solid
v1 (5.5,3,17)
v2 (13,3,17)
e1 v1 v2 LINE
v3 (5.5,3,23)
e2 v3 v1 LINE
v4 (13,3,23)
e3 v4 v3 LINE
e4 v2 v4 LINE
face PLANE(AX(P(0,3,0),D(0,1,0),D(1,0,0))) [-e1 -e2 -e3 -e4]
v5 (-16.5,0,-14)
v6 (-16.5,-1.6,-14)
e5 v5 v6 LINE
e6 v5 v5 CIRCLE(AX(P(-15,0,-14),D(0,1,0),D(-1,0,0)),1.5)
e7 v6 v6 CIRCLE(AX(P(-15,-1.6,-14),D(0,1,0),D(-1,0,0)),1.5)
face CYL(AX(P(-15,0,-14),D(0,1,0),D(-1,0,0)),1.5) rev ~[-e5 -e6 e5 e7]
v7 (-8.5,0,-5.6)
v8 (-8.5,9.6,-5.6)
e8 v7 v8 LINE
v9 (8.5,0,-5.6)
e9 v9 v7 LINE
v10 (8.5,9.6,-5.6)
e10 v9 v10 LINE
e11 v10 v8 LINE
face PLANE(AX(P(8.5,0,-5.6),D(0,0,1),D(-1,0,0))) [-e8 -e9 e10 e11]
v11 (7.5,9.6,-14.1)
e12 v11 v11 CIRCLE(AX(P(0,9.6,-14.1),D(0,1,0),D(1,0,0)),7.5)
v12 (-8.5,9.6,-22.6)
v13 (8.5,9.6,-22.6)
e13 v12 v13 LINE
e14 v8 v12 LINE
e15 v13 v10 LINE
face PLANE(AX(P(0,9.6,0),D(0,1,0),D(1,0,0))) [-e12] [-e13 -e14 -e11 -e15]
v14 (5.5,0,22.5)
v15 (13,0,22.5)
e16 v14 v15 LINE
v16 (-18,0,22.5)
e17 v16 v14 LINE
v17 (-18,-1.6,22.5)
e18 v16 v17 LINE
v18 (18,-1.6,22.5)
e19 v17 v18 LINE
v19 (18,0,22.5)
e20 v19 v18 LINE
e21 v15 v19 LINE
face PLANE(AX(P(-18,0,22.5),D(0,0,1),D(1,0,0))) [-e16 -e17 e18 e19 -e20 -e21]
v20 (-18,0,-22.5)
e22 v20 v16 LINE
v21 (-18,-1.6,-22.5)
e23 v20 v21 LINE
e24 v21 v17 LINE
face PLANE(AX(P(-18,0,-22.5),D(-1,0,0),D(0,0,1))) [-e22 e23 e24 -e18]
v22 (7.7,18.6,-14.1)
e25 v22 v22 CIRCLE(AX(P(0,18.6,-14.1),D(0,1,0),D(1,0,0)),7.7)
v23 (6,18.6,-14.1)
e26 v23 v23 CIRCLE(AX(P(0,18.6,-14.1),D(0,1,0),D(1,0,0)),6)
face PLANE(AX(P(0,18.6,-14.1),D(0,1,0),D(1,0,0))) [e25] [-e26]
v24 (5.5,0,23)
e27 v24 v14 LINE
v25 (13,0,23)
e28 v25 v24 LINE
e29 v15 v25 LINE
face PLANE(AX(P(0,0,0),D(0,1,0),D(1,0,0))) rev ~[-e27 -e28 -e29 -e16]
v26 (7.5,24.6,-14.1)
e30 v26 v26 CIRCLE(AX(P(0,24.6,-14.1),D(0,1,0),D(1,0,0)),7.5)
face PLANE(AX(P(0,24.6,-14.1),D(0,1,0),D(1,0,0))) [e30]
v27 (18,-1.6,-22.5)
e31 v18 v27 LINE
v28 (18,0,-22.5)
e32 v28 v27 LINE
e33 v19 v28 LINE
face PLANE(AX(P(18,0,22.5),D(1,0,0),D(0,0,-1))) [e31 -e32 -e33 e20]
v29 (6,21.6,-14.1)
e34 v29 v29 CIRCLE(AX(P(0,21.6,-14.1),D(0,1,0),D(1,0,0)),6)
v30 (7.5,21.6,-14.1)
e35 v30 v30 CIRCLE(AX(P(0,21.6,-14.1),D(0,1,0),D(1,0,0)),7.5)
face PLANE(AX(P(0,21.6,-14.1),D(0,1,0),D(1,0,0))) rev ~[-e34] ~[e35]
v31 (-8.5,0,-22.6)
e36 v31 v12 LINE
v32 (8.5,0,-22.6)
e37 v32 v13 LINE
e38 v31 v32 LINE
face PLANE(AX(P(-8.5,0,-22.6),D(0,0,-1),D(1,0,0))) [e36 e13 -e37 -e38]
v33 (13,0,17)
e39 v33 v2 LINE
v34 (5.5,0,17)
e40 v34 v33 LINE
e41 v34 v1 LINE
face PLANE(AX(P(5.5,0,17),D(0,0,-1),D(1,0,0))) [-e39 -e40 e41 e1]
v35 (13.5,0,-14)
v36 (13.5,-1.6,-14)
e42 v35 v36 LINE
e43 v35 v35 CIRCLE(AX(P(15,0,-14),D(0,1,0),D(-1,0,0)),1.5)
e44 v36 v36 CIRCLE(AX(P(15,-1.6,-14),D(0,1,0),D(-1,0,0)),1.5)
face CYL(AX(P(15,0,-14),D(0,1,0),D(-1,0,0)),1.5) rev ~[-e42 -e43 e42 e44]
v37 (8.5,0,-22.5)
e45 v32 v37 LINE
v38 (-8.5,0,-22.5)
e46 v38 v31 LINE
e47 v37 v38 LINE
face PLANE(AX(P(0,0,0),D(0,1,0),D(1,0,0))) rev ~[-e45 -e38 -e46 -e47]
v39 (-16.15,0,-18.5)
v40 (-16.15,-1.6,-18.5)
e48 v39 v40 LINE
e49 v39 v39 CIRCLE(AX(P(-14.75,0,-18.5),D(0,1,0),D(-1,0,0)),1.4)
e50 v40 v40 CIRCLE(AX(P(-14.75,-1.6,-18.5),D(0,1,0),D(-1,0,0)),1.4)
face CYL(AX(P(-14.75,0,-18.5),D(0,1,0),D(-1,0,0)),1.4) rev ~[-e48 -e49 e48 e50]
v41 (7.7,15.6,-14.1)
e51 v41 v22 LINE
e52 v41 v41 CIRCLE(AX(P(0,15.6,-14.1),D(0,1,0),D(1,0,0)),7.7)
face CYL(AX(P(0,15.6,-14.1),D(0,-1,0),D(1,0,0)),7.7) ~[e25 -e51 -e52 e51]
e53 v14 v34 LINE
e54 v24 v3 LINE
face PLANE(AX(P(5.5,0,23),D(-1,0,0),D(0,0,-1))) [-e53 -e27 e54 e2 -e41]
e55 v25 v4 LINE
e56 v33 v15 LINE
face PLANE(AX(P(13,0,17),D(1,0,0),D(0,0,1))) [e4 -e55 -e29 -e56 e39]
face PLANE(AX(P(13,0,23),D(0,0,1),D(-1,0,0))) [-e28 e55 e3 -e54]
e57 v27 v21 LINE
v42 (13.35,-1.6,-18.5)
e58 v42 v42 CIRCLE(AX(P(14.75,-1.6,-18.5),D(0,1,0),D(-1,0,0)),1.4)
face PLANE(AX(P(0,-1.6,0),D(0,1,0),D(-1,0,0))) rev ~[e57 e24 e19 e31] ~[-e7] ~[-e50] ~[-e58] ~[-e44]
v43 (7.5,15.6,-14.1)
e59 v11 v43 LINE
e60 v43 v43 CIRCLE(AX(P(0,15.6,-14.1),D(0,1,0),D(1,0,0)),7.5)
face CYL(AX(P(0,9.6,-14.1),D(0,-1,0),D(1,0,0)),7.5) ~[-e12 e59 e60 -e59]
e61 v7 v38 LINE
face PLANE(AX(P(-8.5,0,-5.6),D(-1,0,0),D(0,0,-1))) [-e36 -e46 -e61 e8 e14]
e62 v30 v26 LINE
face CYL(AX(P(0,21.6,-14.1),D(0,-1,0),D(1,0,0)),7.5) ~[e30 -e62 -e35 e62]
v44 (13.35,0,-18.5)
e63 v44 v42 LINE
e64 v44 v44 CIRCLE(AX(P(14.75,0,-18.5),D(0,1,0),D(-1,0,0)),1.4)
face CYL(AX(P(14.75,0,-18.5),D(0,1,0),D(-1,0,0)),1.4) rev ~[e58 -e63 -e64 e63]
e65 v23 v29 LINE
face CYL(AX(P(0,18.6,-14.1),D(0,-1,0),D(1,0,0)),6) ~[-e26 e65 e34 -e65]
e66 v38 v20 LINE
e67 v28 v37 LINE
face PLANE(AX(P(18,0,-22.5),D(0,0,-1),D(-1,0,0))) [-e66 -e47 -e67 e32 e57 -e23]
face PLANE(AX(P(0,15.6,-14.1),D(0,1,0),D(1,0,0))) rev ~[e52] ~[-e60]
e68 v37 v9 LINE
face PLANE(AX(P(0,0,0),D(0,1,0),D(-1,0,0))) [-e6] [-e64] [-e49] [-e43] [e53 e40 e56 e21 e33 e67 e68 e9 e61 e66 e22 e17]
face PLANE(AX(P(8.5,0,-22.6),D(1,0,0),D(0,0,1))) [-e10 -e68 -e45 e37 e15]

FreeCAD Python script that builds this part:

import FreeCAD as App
import Part
import Sketcher
from FreeCAD import Vector

doc = App.newDocument("Part")
body = doc.addObject("PartDesign::Body", "Body")

# Sketch on XZ plane
sketch1 = body.newObject("Sketcher::SketchObject", "Sketch")
sketch1.AttachmentSupport = (doc.getObject("XZ_Plane"), [""])
sketch1.MapMode = "FlatFace"
sketch1.addGeometry([
    Part.LineSegment(Vector(18, 22.5, 0), Vector(18, -22.5, 0)),  # 0
    Part.LineSegment(Vector(18, -22.5, 0), Vector(-18, -22.5, 0)),  # 1
    Part.LineSegment(Vector(-18, -22.5, 0), Vector(-18, 22.5, 0)),  # 2
    Part.LineSegment(Vector(-18, 22.5, 0), Vector(18, 22.5, 0)),  # 3
    Part.Circle(Vector(14.75, -18.5, 0), Vector(0, 0, 1), 1.4),  # 4
    Part.Circle(Vector(15, -14, 0), Vector(0, 0, 1), 1.5),  # 5
    Part.Circle(Vector(-14.75, -18.5, 0), Vector(0, 0, 1), 1.4),  # 6
    Part.Circle(Vector(-15, -14, 0), Vector(0, 0, 1), 1.5),  # 7
], False)
sketch1.addConstraint([
    Sketcher.Constraint("Coincident", 0, 2, 1, 1),
    Sketcher.Constraint("Coincident", 1, 2, 2, 1),
    Sketcher.Constraint("Coincident", 2, 2, 3, 1),
    Sketcher.Constraint("Coincident", 3, 2, 0, 1),
    Sketcher.Constraint("Vertical", 0),
    Sketcher.Constraint("Horizontal", 1),
    Sketcher.Constraint("Vertical", 2),
    Sketcher.Constraint("Horizontal", 3),
    Sketcher.Constraint("Equal", 4, 6),
    Sketcher.Constraint("Equal", 5, 7),
    Sketcher.Constraint("Symmetric", 0, 2, 2, 2, -1, 1),
    Sketcher.Constraint("Symmetric", 4, 3, 6, 3, -2),
    Sketcher.Constraint("Symmetric", 5, 3, 7, 3, -2),
    Sketcher.Constraint("Diameter", 5, 3.0),
    Sketcher.Constraint("Diameter", 4, 2.8),
    Sketcher.Constraint("DistanceX", 1, 2, 1, 1, 36.0),
    Sketcher.Constraint("DistanceY", 0, 2, 0, 1, 45.0),
    Sketcher.Constraint("DistanceX", 7, 3, 5, 3, 30.0),
    Sketcher.Constraint("DistanceY", 0, 2, 4, 3, 4.0),
    Sketcher.Constraint("DistanceX", 6, 3, 4, 3, 29.5),
    Sketcher.Constraint("DistanceY", 0, 2, 5, 3, 8.5),
])
pad1 = body.newObject("PartDesign::Pad", "Pad")
pad1.Profile = sketch1
pad1.Length = 1.6

# Sketch on XZ plane
sketch2 = body.newObject("Sketcher::SketchObject", "Sketch001")
sketch2.AttachmentSupport = (doc.getObject("XZ_Plane"), [""])
sketch2.MapMode = "FlatFace"
sketch2.addGeometry([
    Part.LineSegment(Vector(8.5, -22.6, 0), Vector(-8.5, -22.6, 0)),
    Part.LineSegment(Vector(-8.5, -22.6, 0), Vector(-8.5, -5.6, 0)),
    Part.LineSegment(Vector(-8.5, -5.6, 0), Vector(8.5, -5.6, 0)),
    Part.LineSegment(Vector(8.5, -5.6, 0), Vector(8.5, -22.6, 0)),
], False)
sketch2.addConstraint([
    Sketcher.Constraint("Coincident", 0, 2, 1, 1),
    Sketcher.Constraint("Coincident", 1, 2, 2, 1),
    Sketcher.Constraint("Coincident", 2, 2, 3, 1),
    Sketcher.Constraint("Coincident", 3, 2, 0, 1),
    Sketcher.Constraint("Horizontal", 0),
    Sketcher.Constraint("Vertical", 1),
    Sketcher.Constraint("Horizontal", 2),
    Sketcher.Constraint("Vertical", 3),
    Sketcher.Constraint("Equal", 2, 1),
    Sketcher.Constraint("DistanceX", 0, 2, 0, 1, 17.0),
    Sketcher.Constraint("DistanceX", 0, 2, -1, 1, 8.5),
    Sketcher.Constraint("DistanceY", 0, 2, -1, 1, 22.6),
])
pad2 = body.newObject("PartDesign::Pad", "Pad001")
pad2.Profile = sketch2
pad2.Length = 9.6
pad2.Reversed = True

# Sketch on XZ plane
sketch3 = body.newObject("Sketcher::SketchObject", "Sketch002")
sketch3.AttachmentSupport = (doc.getObject("XZ_Plane"), [""])
sketch3.MapMode = "FlatFace"
sketch3.AttachmentOffset = App.Placement(Vector(0, 0, -9.6), App.Rotation())
sketch3.addGeometry(Part.Circle(Vector(0, -14.1, 0), Vector(0, 0, 1), 7.5), False)
sketch3.addConstraint([
    Sketcher.Constraint("PointOnObject", 0, 3, -2),
    Sketcher.Constraint("Diameter", 0, 15.0),
    Sketcher.Constraint("DistanceY", 0, 3, -1, 1, 14.1),
])
pad3 = body.newObject("PartDesign::Pad", "Pad002")
pad3.Profile = sketch3
pad3.Length = 6
pad3.Reversed = True

# Sketch on XZ plane
sketch4 = body.newObject("Sketcher::SketchObject", "Sketch003")
sketch4.AttachmentSupport = (doc.getObject("XZ_Plane"), [""])
sketch4.MapMode = "FlatFace"
sketch4.AttachmentOffset = App.Placement(Vector(0, 0, -15.6), App.Rotation())
sketch4.addGeometry(Part.Circle(Vector(0, -14.1, 0), Vector(0, 0, 1), 7.7), False)
sketch4.addConstraint([
    Sketcher.Constraint("PointOnObject", 0, 3, -2),
    Sketcher.Constraint("Diameter", 0, 15.4),
    Sketcher.Constraint("DistanceY", 0, 3, -1, 1, 14.1),
])
pad4 = body.newObject("PartDesign::Pad", "Pad003")
pad4.Profile = sketch4
pad4.Length = 3
pad4.Reversed = True

# Sketch on XZ plane
sketch5 = body.newObject("Sketcher::SketchObject", "Sketch004")
sketch5.AttachmentSupport = (doc.getObject("XZ_Plane"), [""])
sketch5.MapMode = "FlatFace"
sketch5.AttachmentOffset = App.Placement(Vector(0, 0, -18.6), App.Rotation())
sketch5.addGeometry(Part.Circle(Vector(0, -14.1, 0), Vector(0, 0, 1), 6), False)
sketch5.addConstraint([
    Sketcher.Constraint("PointOnObject", 0, 3, -2),
    Sketcher.Constraint("Diameter", 0, 12.0),
    Sketcher.Constraint("DistanceY", 0, 3, -1, 1, 14.1),
])
pad5 = body.newObject("PartDesign::Pad", "Pad004")
pad5.Profile = sketch5
pad5.Length = 3
pad5.Reversed = True

# Sketch on XZ plane
sketch6 = body.newObject("Sketcher::SketchObject", "Sketch005")
sketch6.AttachmentSupport = (doc.getObject("XZ_Plane"), [""])
sketch6.MapMode = "FlatFace"
sketch6.AttachmentOffset = App.Placement(Vector(0, 0, -21.6), App.Rotation())
sketch6.addGeometry(Part.Circle(Vector(0, -14.1, 0), Vector(0, 0, 1), 7.5), False)
sketch6.addConstraint([
    Sketcher.Constraint("PointOnObject", 0, 3, -2),
    Sketcher.Constraint("Diameter", 0, 15.0),
    Sketcher.Constraint("DistanceY", 0, 3, -1, 1, 14.1),
])
pad6 = body.newObject("PartDesign::Pad", "Pad005")
pad6.Profile = sketch6
pad6.Length = 3
pad6.Reversed = True

# Sketch on XZ plane
sketch7 = body.newObject("Sketcher::SketchObject", "Sketch006")
sketch7.AttachmentSupport = (doc.getObject("XZ_Plane"), [""])
sketch7.MapMode = "FlatFace"
sketch7.addGeometry([
    Part.LineSegment(Vector(13, 17, 0), Vector(5.5, 17, 0)),
    Part.LineSegment(Vector(5.5, 17, 0), Vector(5.5, 23, 0)),
    Part.LineSegment(Vector(5.5, 23, 0), Vector(13, 23, 0)),
    Part.LineSegment(Vector(13, 23, 0), Vector(13, 17, 0)),
], False)
sketch7.addConstraint([
    Sketcher.Constraint("Coincident", 0, 2, 1, 1),
    Sketcher.Constraint("Coincident", 1, 2, 2, 1),
    Sketcher.Constraint("Coincident", 2, 2, 3, 1),
    Sketcher.Constraint("Coincident", 3, 2, 0, 1),
    Sketcher.Constraint("Horizontal", 0),
    Sketcher.Constraint("Vertical", 1),
    Sketcher.Constraint("Horizontal", 2),
    Sketcher.Constraint("Vertical", 3),
    Sketcher.Constraint("DistanceY", 1, 1, 1, 2, 6.0),
    Sketcher.Constraint("DistanceX", 0, 2, 0, 1, 7.5),
    Sketcher.Constraint("DistanceY", -1, 1, 0, 2, 17.0),
    Sketcher.Constraint("DistanceX", -1, 1, 2, 2, 13.0),
])
pad7 = body.newObject("PartDesign::Pad", "Pad006")
pad7.Profile = sketch7
pad7.Length = 3
pad7.Reversed = True

doc.recompute()
